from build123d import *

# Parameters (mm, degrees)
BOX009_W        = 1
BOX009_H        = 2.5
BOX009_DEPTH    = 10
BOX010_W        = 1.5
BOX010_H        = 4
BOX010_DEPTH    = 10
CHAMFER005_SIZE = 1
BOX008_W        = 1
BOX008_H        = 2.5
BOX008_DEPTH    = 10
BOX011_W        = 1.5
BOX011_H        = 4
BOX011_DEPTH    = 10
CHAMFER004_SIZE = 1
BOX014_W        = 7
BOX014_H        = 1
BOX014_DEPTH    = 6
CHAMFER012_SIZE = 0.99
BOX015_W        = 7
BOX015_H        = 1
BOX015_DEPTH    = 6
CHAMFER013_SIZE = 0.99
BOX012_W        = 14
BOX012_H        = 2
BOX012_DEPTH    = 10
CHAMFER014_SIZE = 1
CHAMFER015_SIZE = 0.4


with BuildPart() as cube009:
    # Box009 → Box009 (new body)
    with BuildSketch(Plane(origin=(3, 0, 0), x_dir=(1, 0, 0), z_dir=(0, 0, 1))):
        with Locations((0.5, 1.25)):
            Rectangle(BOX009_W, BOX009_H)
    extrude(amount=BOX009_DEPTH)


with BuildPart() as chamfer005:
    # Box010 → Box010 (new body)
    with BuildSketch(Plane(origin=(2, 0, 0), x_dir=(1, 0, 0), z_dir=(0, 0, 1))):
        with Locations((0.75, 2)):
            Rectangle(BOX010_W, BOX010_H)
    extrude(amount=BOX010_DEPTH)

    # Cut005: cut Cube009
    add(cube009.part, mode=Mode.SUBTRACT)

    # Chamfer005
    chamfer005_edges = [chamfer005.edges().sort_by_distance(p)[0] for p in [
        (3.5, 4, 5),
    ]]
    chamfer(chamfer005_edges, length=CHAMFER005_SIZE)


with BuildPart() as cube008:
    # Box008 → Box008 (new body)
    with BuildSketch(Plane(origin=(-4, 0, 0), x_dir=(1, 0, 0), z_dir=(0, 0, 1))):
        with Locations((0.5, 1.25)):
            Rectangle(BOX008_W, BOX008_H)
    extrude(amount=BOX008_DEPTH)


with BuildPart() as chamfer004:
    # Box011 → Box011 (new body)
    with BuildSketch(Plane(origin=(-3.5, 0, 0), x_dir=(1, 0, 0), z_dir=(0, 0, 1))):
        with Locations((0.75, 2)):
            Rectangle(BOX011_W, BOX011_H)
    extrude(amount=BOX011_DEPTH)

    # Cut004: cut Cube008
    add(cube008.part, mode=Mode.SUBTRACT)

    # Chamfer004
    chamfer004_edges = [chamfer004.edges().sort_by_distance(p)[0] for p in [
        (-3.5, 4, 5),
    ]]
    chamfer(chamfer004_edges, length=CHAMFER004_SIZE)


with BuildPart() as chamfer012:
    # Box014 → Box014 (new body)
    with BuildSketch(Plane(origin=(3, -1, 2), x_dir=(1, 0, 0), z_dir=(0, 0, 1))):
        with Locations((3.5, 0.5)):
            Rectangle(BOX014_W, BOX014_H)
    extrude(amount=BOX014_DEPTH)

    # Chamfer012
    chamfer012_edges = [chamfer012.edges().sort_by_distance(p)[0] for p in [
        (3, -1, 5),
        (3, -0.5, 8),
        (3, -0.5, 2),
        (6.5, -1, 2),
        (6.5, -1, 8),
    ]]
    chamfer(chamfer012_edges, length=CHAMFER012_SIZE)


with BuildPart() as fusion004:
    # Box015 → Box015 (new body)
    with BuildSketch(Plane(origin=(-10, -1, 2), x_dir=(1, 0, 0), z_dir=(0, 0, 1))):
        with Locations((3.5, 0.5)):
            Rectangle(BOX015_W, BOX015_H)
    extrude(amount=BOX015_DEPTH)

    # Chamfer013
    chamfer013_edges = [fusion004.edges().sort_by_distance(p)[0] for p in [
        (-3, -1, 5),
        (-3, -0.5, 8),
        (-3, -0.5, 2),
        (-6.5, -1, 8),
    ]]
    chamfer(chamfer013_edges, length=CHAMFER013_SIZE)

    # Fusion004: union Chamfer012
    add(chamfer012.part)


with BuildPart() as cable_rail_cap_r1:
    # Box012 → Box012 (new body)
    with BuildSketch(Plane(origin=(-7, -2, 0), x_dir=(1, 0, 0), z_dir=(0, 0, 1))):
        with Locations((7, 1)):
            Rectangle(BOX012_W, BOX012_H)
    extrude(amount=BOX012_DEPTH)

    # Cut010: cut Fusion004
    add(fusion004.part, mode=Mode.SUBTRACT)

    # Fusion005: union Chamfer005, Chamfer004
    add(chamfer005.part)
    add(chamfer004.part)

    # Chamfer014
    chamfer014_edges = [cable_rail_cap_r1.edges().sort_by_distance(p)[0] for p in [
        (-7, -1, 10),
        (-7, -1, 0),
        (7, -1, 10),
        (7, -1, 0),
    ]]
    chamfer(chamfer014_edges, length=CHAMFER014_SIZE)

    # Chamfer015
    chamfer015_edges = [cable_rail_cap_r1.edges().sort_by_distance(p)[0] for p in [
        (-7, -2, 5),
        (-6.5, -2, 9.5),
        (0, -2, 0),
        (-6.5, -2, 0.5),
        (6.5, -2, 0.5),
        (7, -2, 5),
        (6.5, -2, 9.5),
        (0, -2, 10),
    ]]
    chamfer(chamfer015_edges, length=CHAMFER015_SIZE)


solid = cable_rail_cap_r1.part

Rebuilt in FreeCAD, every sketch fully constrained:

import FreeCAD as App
import Part
import Sketcher

V = App.Vector


def edges_at(feature, points):
    """Names of the edges that pass closest to the given points."""
    edges = feature.Shape.Edges
    near = lambda p: min(range(len(edges)), key=lambda i: edges[i].distToShape(Part.Vertex(*p))[0])
    return sorted({f"Edge{near(p) + 1}" for p in points})

doc = App.newDocument("Part")
body = doc.addObject("PartDesign::Body", "Body")

# Sketch on XY plane
sketch1 = body.newObject("Sketcher::SketchObject", "Sketch")
sketch1.AttachmentSupport = (doc.getObject("XY_Plane"), [""])
sketch1.MapMode = "FlatFace"
sketch1.addGeometry(Part.LineSegment(V(3, 2.5, 0), V(3, 0, 0)), False)
sketch1.addGeometry(Part.LineSegment(V(3, 0, 0), V(4, 0, 0)), False)
sketch1.addGeometry(Part.LineSegment(V(4, 0, 0), V(4, 2.5, 0)), False)
sketch1.addGeometry(Part.LineSegment(V(4, 2.5, 0), V(3, 2.5, 0)), False)
sketch1.addConstraint(Sketcher.Constraint("Coincident", 0, 2, 1, 1))
sketch1.addConstraint(Sketcher.Constraint("Coincident", 1, 2, 2, 1))
sketch1.addConstraint(Sketcher.Constraint("Coincident", 2, 2, 3, 1))
sketch1.addConstraint(Sketcher.Constraint("Coincident", 3, 2, 0, 1))
sketch1.addConstraint(Sketcher.Constraint("Vertical", 0))
sketch1.addConstraint(Sketcher.Constraint("Horizontal", 1))
sketch1.addConstraint(Sketcher.Constraint("Vertical", 2))
sketch1.addConstraint(Sketcher.Constraint("Horizontal", 3))
sketch1.addConstraint(Sketcher.Constraint("PointOnObject", 0, 2, -1))
sketch1.addConstraint(Sketcher.Constraint("DistanceX", 1, 1, 1, 2, 1.0))
sketch1.addConstraint(Sketcher.Constraint("DistanceY", 0, 2, 0, 1, 2.5))
sketch1.addConstraint(Sketcher.Constraint("DistanceX", -1, 1, 0, 2, 3.0))
pad1 = body.newObject("PartDesign::Pad", "Pad")
pad1.Profile = sketch1
pad1.Length = 10
body2 = doc.addObject("PartDesign::Body", "Body001")

# Sketch on XY plane
sketch2 = body2.newObject("Sketcher::SketchObject", "Sketch001")
sketch2.AttachmentSupport = (doc.getObject("XY_Plane001"), [""])
sketch2.MapMode = "FlatFace"
sketch2.addGeometry(Part.LineSegment(V(2, 4, 0), V(2, 0, 0)), False)
sketch2.addGeometry(Part.LineSegment(V(2, 0, 0), V(3.5, 0, 0)), False)
sketch2.addGeometry(Part.LineSegment(V(3.5, 0, 0), V(3.5, 4, 0)), False)
sketch2.addGeometry(Part.LineSegment(V(3.5, 4, 0), V(2, 4, 0)), False)
sketch2.addConstraint(Sketcher.Constraint("Coincident", 0, 2, 1, 1))
sketch2.addConstraint(Sketcher.Constraint("Coincident", 1, 2, 2, 1))
sketch2.addConstraint(Sketcher.Constraint("Coincident", 2, 2, 3, 1))
sketch2.addConstraint(Sketcher.Constraint("Coincident", 3, 2, 0, 1))
sketch2.addConstraint(Sketcher.Constraint("Vertical", 0))
sketch2.addConstraint(Sketcher.Constraint("Horizontal", 1))
sketch2.addConstraint(Sketcher.Constraint("Vertical", 2))
sketch2.addConstraint(Sketcher.Constraint("Horizontal", 3))
sketch2.addConstraint(Sketcher.Constraint("PointOnObject", 0, 2, -1))
sketch2.addConstraint(Sketcher.Constraint("DistanceY", 0, 2, 0, 1, 4.0))
sketch2.addConstraint(Sketcher.Constraint("DistanceX", 1, 1, 1, 2, 1.5))
sketch2.addConstraint(Sketcher.Constraint("DistanceX", -1, 1, 0, 2, 2.0))
pad2 = body2.newObject("PartDesign::Pad", "Pad001")
pad2.Profile = sketch2
pad2.Length = 10
doc.recompute()

boolean = body2.newObject("PartDesign::Boolean", "Boolean")
boolean.Type = "Cut"
boolean.addObjects([body])
doc.recompute()

chamfer = body2.newObject("PartDesign::Chamfer", "Chamfer")
chamfer.Base = (boolean, edges_at(boolean, [(3.5, 4, 5)]))
chamfer.Size = 1
body3 = doc.addObject("PartDesign::Body", "Body002")

# Sketch on XY plane
sketch3 = body3.newObject("Sketcher::SketchObject", "Sketch002")
sketch3.AttachmentSupport = (doc.getObject("XY_Plane002"), [""])
sketch3.MapMode = "FlatFace"
sketch3.addGeometry(Part.LineSegment(V(-4, 2.5, 0), V(-4, 0, 0)), False)
sketch3.addGeometry(Part.LineSegment(V(-4, 0, 0), V(-3, 0, 0)), False)
sketch3.addGeometry(Part.LineSegment(V(-3, 0, 0), V(-3, 2.5, 0)), False)
sketch3.addGeometry(Part.LineSegment(V(-3, 2.5, 0), V(-4, 2.5, 0)), False)
sketch3.addConstraint(Sketcher.Constraint("Coincident", 0, 2, 1, 1))
sketch3.addConstraint(Sketcher.Constraint("Coincident", 1, 2, 2, 1))
sketch3.addConstraint(Sketcher.Constraint("Coincident", 2, 2, 3, 1))
sketch3.addConstraint(Sketcher.Constraint("Coincident", 3, 2, 0, 1))
sketch3.addConstraint(Sketcher.Constraint("Vertical", 0))
sketch3.addConstraint(Sketcher.Constraint("Horizontal", 1))
sketch3.addConstraint(Sketcher.Constraint("Vertical", 2))
sketch3.addConstraint(Sketcher.Constraint("Horizontal", 3))
sketch3.addConstraint(Sketcher.Constraint("PointOnObject", 0, 2, -1))
sketch3.addConstraint(Sketcher.Constraint("DistanceX", 1, 1, 1, 2, 1.0))
sketch3.addConstraint(Sketcher.Constraint("DistanceY", 0, 2, 0, 1, 2.5))
sketch3.addConstraint(Sketcher.Constraint("DistanceX", 0, 2, -1, 1, 4.0))
pad3 = body3.newObject("PartDesign::Pad", "Pad002")
pad3.Profile = sketch3
pad3.Length = 10
body4 = doc.addObject("PartDesign::Body", "Body003")

# Sketch on XY plane
sketch4 = body4.newObject("Sketcher::SketchObject", "Sketch003")
sketch4.AttachmentSupport = (doc.getObject("XY_Plane003"), [""])
sketch4.MapMode = "FlatFace"
sketch4.addGeometry(Part.LineSegment(V(-3.5, 4, 0), V(-3.5, 0, 0)), False)
sketch4.addGeometry(Part.LineSegment(V(-3.5, 0, 0), V(-2, 0, 0)), False)
sketch4.addGeometry(Part.LineSegment(V(-2, 0, 0), V(-2, 4, 0)), False)
sketch4.addGeometry(Part.LineSegment(V(-2, 4, 0), V(-3.5, 4, 0)), False)
sketch4.addConstraint(Sketcher.Constraint("Coincident", 0, 2, 1, 1))
sketch4.addConstraint(Sketcher.Constraint("Coincident", 1, 2, 2, 1))
sketch4.addConstraint(Sketcher.Constraint("Coincident", 2, 2, 3, 1))
sketch4.addConstraint(Sketcher.Constraint("Coincident", 3, 2, 0, 1))
sketch4.addConstraint(Sketcher.Constraint("Vertical", 0))
sketch4.addConstraint(Sketcher.Constraint("Horizontal", 1))
sketch4.addConstraint(Sketcher.Constraint("Vertical", 2))
sketch4.addConstraint(Sketcher.Constraint("Horizontal", 3))
sketch4.addConstraint(Sketcher.Constraint("PointOnObject", 0, 2, -1))
sketch4.addConstraint(Sketcher.Constraint("DistanceY", 0, 2, 0, 1, 4.0))
sketch4.addConstraint(Sketcher.Constraint("DistanceX", 1, 1, 1, 2, 1.5))
sketch4.addConstraint(Sketcher.Constraint("DistanceX", 1, 2, -1, 1, 2.0))
pad4 = body4.newObject("PartDesign::Pad", "Pad003")
pad4.Profile = sketch4
pad4.Length = 10
doc.recompute()

boolean2 = body4.newObject("PartDesign::Boolean", "Boolean001")
boolean2.Type = "Cut"
boolean2.addObjects([body3])
doc.recompute()

chamfer2 = body4.newObject("PartDesign::Chamfer", "Chamfer001")
chamfer2.Base = (boolean2, edges_at(boolean2, [(-3.5, 4, 5)]))
chamfer2.Size = 1
body5 = doc.addObject("PartDesign::Body", "Body004")

# Sketch on XY plane
sketch5 = body5.newObject("Sketcher::SketchObject", "Sketch004")
sketch5.AttachmentSupport = (doc.getObject("XY_Plane004"), [""])
sketch5.MapMode = "FlatFace"
sketch5.AttachmentOffset = App.Placement(V(0, 0, 2), App.Rotation())
sketch5.addGeometry(Part.LineSegment(V(3, 0, 0), V(3, -1, 0)), False)
sketch5.addGeometry(Part.LineSegment(V(3, -1, 0), V(10, -1, 0)), False)
sketch5.addGeometry(Part.LineSegment(V(10, -1, 0), V(10, 0, 0)), False)
sketch5.addGeometry(Part.LineSegment(V(10, 0, 0), V(3, 0, 0)), False)
sketch5.addConstraint(Sketcher.Constraint("Coincident", 0, 2, 1, 1))
sketch5.addConstraint(Sketcher.Constraint("Coincident", 1, 2, 2, 1))
sketch5.addConstraint(Sketcher.Constraint("Coincident", 2, 2, 3, 1))
sketch5.addConstraint(Sketcher.Constraint("Coincident", 3, 2, 0, 1))
sketch5.addConstraint(Sketcher.Constraint("Vertical", 0))
sketch5.addConstraint(Sketcher.Constraint("Horizontal", 1))
sketch5.addConstraint(Sketcher.Constraint("Vertical", 2))
sketch5.addConstraint(Sketcher.Constraint("Horizontal", 3))
sketch5.addConstraint(Sketcher.Constraint("PointOnObject", 2, 2, -1))
sketch5.addConstraint(Sketcher.Constraint("DistanceX", 1, 1, 1, 2, 7.0))
sketch5.addConstraint(Sketcher.Constraint("DistanceY", 0, 2, 0, 1, 1.0))
sketch5.addConstraint(Sketcher.Constraint("DistanceX", -1, 1, 0, 2, 3.0))
pad5 = body5.newObject("PartDesign::Pad", "Pad004")
pad5.Profile = sketch5
pad5.Length = 6
doc.recompute()

chamfer3 = body5.newObject("PartDesign::Chamfer", "Chamfer002")
chamfer3.Base = (pad5, edges_at(pad5, [
    (3, -1, 5),
    (3, -0.5, 8),
    (3, -0.5, 2),
    (6.5, -1, 2),
    (6.5, -1, 8),
]))
chamfer3.Size = 0.99
body6 = doc.addObject("PartDesign::Body", "Body005")
body6.AllowCompound = True

# Sketch on XY plane
sketch6 = body6.newObject("Sketcher::SketchObject", "Sketch005")
sketch6.AttachmentSupport = (doc.getObject("XY_Plane005"), [""])
sketch6.MapMode = "FlatFace"
sketch6.AttachmentOffset = App.Placement(V(0, 0, 2), App.Rotation())
sketch6.addGeometry(Part.LineSegment(V(-10, 0, 0), V(-10, -1, 0)), False)
sketch6.addGeometry(Part.LineSegment(V(-10, -1, 0), V(-3, -1, 0)), False)
sketch6.addGeometry(Part.LineSegment(V(-3, -1, 0), V(-3, 0, 0)), False)
sketch6.addGeometry(Part.LineSegment(V(-3, 0, 0), V(-10, 0, 0)), False)
sketch6.addConstraint(Sketcher.Constraint("Coincident", 0, 2, 1, 1))
sketch6.addConstraint(Sketcher.Constraint("Coincident", 1, 2, 2, 1))
sketch6.addConstraint(Sketcher.Constraint("Coincident", 2, 2, 3, 1))
sketch6.addConstraint(Sketcher.Constraint("Coincident", 3, 2, 0, 1))
sketch6.addConstraint(Sketcher.Constraint("Vertical", 0))
sketch6.addConstraint(Sketcher.Constraint("Horizontal", 1))
sketch6.addConstraint(Sketcher.Constraint("Vertical", 2))
sketch6.addConstraint(Sketcher.Constraint("Horizontal", 3))
sketch6.addConstraint(Sketcher.Constraint("PointOnObject", 2, 2, -1))
sketch6.addConstraint(Sketcher.Constraint("DistanceX", 1, 1, 1, 2, 7.0))
sketch6.addConstraint(Sketcher.Constraint("DistanceY", 0, 2, 0, 1, 1.0))
sketch6.addConstraint(Sketcher.Constraint("DistanceX", 0, 2, -1, 1, 10.0))
pad6 = body6.newObject("PartDesign::Pad", "Pad005")
pad6.Profile = sketch6
pad6.Length = 6
doc.recompute()

chamfer4 = body6.newObject("PartDesign::Chamfer", "Chamfer003")
chamfer4.Base = (pad6, edges_at(pad6, [
    (-3, -1, 5),
    (-3, -0.5, 8),
    (-3, -0.5, 2),
    (-6.5, -1, 8),
]))
chamfer4.Size = 0.99
doc.recompute()

boolean3 = body6.newObject("PartDesign::Boolean", "Boolean002")
boolean3.Type = "Fuse"
boolean3.addObjects([body5])
body7 = doc.addObject("PartDesign::Body", "Body006")

# Sketch on XY plane
sketch7 = body7.newObject("Sketcher::SketchObject", "Sketch006")
sketch7.AttachmentSupport = (doc.getObject("XY_Plane006"), [""])
sketch7.MapMode = "FlatFace"
sketch7.addGeometry(Part.LineSegment(V(-7, 0, 0), V(-7, -2, 0)), False)
sketch7.addGeometry(Part.LineSegment(V(-7, -2, 0), V(7, -2, 0)), False)
sketch7.addGeometry(Part.LineSegment(V(7, -2, 0), V(7, 0, 0)), False)
sketch7.addGeometry(Part.LineSegment(V(7, 0, 0), V(-7, 0, 0)), False)
sketch7.addConstraint(Sketcher.Constraint("Coincident", 0, 2, 1, 1))
sketch7.addConstraint(Sketcher.Constraint("Coincident", 1, 2, 2, 1))
sketch7.addConstraint(Sketcher.Constraint("Coincident", 2, 2, 3, 1))
sketch7.addConstraint(Sketcher.Constraint("Coincident", 3, 2, 0, 1))
sketch7.addConstraint(Sketcher.Constraint("Vertical", 0))
sketch7.addConstraint(Sketcher.Constraint("Horizontal", 1))
sketch7.addConstraint(Sketcher.Constraint("Vertical", 2))
sketch7.addConstraint(Sketcher.Constraint("Horizontal", 3))
sketch7.addConstraint(Sketcher.Constraint("Symmetric", 2, 2, 3, 2, -1, 1))
sketch7.addConstraint(Sketcher.Constraint("DistanceX", 1, 1, 1, 2, 14.0))
sketch7.addConstraint(Sketcher.Constraint("DistanceY", 0, 2, 0, 1, 2.0))
pad7 = body7.newObject("PartDesign::Pad", "Pad006")
pad7.Profile = sketch7
pad7.Length = 10
doc.recompute()

boolean4 = body7.newObject("PartDesign::Boolean", "Boolean003")
boolean4.Type = "Cut"
boolean4.addObjects([body6])
doc.recompute()

boolean5 = body7.newObject("PartDesign::Boolean", "Boolean004")
boolean5.Type = "Fuse"
boolean5.addObjects([body2])
doc.recompute()

boolean6 = body7.newObject("PartDesign::Boolean", "Boolean005")
boolean6.Type = "Fuse"
boolean6.addObjects([body4])
doc.recompute()

chamfer5 = body7.newObject("PartDesign::Chamfer", "Chamfer004")
chamfer5.Base = (boolean6, edges_at(boolean6, [
    (-7, -1, 10),
    (-7, -1, 0),
    (7, -1, 10),
    (7, -1, 0),
]))
chamfer5.Size = 1
doc.recompute()

chamfer6 = body7.newObject("PartDesign::Chamfer", "Chamfer005")
chamfer6.Base = (chamfer5, edges_at(chamfer5, [
    (-7, -2, 5),
    (-6.5, -2, 9.5),
    (0, -2, 0),
    (-6.5, -2, 0.5),
    (6.5, -2, 0.5),
    (7, -2, 5),
    (6.5, -2, 9.5),
    (0, -2, 10),
]))
chamfer6.Size = 0.4

doc.recompute()
